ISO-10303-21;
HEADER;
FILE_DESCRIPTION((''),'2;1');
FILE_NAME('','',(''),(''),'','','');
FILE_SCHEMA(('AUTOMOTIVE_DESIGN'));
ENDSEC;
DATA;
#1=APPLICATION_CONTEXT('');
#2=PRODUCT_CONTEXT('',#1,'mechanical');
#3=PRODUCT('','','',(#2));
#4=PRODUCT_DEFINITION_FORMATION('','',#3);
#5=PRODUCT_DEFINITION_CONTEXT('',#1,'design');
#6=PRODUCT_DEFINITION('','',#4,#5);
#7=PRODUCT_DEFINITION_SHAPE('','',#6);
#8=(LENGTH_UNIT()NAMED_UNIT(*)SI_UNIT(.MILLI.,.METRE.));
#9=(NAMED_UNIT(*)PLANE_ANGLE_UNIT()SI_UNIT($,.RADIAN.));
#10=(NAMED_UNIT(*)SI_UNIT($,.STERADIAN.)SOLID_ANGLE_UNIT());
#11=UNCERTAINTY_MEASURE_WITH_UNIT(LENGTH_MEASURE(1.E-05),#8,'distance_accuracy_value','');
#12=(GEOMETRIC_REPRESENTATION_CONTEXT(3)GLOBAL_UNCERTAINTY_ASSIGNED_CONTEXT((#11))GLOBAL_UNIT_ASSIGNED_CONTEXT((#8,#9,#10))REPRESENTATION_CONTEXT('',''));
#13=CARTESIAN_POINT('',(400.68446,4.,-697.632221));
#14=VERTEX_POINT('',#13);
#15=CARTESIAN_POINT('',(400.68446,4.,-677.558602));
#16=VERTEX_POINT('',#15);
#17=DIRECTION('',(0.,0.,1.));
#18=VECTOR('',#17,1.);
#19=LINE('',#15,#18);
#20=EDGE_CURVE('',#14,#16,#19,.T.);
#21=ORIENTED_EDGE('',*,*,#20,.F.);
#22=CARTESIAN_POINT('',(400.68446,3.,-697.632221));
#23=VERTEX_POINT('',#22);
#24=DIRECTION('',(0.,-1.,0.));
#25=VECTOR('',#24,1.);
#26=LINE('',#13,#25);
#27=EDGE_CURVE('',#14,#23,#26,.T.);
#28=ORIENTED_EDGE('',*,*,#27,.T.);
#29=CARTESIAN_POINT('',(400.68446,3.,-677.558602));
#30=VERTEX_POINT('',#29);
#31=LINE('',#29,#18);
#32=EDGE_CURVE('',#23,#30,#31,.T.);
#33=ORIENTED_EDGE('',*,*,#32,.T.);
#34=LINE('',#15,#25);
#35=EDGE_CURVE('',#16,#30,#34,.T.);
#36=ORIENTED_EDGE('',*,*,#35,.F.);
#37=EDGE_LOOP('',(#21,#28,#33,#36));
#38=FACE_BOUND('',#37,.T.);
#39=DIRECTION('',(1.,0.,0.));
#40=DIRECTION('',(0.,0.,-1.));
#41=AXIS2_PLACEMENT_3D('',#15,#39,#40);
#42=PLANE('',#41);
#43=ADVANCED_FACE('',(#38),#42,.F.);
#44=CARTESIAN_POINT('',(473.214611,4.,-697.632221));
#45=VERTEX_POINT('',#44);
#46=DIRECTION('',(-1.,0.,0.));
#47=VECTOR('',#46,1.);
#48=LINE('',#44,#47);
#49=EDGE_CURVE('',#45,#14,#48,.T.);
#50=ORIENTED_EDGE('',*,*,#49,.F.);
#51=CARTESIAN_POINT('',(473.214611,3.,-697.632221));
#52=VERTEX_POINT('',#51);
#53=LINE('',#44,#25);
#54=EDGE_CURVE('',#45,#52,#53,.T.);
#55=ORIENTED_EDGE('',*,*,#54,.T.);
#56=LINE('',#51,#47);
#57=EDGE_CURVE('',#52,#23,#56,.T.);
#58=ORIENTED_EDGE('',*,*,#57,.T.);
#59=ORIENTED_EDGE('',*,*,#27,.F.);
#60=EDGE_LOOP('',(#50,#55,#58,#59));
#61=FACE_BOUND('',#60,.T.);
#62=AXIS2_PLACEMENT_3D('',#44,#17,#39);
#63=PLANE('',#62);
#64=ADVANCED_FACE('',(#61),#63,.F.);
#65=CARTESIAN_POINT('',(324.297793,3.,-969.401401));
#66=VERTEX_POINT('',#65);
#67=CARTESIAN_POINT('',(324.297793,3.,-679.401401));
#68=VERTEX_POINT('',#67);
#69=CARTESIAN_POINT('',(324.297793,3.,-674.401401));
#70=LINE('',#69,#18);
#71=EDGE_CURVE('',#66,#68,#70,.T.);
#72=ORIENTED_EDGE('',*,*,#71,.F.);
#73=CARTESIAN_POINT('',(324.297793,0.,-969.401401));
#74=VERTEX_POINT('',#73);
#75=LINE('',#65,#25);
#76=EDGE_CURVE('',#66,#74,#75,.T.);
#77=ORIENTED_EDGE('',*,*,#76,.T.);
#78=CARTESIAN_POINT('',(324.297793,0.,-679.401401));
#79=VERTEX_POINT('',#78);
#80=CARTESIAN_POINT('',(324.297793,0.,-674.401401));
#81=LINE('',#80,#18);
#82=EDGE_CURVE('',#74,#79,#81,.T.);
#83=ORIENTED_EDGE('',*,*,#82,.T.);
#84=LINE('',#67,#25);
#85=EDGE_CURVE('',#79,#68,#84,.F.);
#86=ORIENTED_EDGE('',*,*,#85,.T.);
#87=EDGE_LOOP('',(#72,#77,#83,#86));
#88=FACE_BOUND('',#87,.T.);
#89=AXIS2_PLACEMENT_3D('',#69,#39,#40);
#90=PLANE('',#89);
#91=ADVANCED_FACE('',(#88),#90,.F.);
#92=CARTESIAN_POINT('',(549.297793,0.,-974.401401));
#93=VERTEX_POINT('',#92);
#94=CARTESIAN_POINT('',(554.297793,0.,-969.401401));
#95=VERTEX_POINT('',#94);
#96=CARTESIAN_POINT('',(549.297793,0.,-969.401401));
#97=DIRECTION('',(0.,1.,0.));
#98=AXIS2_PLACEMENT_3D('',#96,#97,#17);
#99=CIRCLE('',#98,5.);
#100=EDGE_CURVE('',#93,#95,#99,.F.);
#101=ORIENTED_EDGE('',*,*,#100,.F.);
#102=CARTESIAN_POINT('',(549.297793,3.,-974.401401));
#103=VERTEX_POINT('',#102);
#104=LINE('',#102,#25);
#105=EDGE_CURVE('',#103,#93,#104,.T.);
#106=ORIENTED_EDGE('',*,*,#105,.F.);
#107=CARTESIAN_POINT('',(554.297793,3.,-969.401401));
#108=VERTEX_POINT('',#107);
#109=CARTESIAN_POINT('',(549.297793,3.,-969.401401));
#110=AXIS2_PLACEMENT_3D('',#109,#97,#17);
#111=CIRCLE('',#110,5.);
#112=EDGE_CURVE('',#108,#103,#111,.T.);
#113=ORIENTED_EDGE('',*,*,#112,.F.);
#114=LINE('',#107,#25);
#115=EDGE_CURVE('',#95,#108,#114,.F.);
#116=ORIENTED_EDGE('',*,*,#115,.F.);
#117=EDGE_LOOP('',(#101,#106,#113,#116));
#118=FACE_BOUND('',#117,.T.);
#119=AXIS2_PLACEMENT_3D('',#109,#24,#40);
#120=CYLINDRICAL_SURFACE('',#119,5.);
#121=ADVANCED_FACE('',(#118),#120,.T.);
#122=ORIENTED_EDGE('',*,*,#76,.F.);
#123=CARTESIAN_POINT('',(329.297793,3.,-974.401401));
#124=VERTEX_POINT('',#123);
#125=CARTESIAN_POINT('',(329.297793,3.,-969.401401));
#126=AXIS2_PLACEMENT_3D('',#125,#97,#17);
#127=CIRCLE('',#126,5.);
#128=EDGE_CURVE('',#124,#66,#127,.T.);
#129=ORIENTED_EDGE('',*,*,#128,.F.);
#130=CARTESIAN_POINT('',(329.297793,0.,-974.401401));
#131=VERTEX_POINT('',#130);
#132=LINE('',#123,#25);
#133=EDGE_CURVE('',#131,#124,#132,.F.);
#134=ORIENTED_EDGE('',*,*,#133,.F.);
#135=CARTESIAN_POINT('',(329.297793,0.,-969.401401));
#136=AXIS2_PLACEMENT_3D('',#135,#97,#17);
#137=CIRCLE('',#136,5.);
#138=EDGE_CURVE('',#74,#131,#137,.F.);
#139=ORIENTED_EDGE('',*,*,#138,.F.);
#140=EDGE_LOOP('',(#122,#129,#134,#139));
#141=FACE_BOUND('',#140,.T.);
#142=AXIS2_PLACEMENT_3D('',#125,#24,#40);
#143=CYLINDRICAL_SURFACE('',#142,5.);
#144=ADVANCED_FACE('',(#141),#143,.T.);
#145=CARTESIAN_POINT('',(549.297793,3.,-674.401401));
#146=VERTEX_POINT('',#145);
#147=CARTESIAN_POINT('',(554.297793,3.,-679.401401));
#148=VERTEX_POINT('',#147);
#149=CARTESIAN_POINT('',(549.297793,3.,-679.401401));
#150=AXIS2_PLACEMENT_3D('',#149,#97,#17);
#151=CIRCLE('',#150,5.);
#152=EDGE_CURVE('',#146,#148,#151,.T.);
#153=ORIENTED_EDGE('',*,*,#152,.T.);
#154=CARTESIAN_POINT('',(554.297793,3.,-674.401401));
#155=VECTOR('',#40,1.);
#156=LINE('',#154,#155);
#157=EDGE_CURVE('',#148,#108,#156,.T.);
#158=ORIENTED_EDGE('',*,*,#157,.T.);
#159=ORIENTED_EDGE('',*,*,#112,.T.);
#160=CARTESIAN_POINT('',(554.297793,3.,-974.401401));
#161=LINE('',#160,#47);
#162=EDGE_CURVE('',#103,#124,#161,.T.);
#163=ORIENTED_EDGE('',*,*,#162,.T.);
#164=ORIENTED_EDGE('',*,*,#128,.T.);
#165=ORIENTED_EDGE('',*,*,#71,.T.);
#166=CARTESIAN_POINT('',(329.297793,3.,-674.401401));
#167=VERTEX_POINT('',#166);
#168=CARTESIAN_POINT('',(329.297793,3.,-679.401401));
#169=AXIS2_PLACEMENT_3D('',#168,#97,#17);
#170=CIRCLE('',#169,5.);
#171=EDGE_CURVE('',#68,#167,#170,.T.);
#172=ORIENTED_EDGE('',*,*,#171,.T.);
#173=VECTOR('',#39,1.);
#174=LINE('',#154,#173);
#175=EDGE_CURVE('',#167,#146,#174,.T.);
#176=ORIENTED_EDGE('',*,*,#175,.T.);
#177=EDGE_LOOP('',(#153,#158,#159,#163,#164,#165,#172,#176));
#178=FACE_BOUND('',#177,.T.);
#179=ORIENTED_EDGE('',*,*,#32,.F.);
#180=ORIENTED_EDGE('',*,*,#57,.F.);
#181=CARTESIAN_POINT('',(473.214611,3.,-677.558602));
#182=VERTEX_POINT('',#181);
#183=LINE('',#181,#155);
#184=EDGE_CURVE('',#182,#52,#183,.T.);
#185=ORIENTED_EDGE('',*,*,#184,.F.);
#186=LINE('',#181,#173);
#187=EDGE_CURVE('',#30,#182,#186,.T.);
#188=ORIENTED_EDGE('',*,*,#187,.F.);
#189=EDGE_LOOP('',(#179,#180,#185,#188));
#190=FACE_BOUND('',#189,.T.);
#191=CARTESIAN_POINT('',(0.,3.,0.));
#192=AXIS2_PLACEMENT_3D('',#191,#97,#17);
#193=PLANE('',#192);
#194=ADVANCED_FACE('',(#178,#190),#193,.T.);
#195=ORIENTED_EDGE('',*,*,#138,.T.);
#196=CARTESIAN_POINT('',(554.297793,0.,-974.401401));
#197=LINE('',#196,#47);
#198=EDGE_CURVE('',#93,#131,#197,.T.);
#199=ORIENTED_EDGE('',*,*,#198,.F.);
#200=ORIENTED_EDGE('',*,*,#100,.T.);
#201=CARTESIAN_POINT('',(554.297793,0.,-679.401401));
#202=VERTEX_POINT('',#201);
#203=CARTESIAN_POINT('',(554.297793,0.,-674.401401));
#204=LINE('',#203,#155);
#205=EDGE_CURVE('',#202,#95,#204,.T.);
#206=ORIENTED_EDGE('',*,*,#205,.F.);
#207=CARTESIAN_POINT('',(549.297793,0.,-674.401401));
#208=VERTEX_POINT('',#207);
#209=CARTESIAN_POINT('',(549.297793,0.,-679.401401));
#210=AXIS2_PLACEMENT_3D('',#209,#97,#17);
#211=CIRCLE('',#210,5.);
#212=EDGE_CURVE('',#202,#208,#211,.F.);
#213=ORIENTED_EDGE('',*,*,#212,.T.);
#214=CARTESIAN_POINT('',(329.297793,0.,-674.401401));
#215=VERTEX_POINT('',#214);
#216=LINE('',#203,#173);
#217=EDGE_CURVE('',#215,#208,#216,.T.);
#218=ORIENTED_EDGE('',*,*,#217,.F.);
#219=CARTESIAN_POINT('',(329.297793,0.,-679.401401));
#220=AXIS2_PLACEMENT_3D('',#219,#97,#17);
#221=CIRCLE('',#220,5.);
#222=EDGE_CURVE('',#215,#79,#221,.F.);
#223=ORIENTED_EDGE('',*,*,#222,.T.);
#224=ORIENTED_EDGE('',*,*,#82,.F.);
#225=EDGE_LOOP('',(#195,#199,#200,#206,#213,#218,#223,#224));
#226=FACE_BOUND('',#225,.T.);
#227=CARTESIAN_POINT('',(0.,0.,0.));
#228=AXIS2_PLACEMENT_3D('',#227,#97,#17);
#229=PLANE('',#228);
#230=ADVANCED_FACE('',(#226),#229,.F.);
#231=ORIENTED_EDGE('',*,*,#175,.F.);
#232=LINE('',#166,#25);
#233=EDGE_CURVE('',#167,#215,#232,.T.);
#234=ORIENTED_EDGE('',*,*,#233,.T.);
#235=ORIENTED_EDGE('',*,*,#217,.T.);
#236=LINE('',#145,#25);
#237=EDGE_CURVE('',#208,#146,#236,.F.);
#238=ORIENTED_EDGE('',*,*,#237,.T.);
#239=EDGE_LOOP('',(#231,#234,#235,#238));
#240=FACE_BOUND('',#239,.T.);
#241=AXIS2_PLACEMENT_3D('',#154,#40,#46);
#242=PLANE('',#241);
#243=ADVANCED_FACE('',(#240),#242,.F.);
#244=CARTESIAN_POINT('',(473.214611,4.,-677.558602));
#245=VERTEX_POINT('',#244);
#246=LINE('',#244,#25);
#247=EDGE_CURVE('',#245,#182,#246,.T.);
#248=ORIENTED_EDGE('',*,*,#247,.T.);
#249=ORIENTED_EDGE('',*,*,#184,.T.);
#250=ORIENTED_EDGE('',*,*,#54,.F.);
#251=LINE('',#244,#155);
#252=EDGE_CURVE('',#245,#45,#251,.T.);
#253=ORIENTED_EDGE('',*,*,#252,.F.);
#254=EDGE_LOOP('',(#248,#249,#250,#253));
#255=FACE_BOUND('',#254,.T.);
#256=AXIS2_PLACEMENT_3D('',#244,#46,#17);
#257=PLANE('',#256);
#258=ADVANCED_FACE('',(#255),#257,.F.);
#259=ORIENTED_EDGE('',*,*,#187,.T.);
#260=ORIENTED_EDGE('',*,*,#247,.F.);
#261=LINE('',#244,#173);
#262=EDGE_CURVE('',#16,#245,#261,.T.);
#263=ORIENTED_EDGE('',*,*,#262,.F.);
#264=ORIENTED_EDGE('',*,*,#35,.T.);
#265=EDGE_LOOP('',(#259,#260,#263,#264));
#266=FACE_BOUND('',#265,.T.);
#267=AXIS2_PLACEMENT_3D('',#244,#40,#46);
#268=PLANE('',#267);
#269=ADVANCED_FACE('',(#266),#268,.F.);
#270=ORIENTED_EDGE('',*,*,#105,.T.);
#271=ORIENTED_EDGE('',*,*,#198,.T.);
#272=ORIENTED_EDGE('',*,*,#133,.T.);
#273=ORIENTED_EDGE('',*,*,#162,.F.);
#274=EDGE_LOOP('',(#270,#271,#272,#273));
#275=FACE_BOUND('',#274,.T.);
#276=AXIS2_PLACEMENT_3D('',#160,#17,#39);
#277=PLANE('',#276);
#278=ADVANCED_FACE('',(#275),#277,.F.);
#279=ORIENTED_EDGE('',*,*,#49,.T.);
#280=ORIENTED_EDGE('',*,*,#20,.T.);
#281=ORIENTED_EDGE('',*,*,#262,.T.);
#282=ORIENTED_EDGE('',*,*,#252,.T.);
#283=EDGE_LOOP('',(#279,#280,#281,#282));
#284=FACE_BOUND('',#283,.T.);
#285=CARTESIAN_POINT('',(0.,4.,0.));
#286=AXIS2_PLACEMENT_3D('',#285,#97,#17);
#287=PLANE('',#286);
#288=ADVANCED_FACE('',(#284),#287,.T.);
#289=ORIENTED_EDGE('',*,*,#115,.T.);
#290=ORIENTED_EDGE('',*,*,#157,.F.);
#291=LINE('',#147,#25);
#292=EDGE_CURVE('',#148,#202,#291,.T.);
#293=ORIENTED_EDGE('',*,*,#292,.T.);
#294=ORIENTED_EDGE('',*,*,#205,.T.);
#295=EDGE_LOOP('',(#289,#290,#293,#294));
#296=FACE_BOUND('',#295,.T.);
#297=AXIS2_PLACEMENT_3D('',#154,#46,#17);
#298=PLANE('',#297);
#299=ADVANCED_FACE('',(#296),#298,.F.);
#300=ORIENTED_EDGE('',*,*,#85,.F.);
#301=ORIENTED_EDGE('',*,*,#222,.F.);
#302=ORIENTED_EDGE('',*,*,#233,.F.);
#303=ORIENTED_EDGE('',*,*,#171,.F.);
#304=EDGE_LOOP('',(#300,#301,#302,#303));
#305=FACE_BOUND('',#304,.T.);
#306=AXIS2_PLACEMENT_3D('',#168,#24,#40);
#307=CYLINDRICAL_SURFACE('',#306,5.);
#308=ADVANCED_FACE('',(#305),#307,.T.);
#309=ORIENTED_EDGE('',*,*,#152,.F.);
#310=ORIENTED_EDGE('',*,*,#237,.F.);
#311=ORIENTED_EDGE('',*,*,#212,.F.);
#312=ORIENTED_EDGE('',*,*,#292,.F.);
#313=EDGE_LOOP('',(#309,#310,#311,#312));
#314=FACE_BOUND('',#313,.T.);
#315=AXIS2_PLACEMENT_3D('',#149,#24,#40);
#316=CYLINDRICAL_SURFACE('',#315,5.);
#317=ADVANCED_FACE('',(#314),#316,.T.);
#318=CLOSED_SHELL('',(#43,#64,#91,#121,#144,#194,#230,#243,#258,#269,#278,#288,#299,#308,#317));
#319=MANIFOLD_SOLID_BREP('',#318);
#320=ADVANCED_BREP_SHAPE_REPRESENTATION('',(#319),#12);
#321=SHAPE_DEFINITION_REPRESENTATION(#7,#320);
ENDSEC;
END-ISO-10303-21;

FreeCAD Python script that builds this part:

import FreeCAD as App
import Part
import Sketcher

V = App.Vector
Q = App.Units.Quantity


def edges_at(feature, points):
    """Names of the edges that pass closest to the given points."""
    edges = feature.Shape.Edges
    near = lambda p: min(range(len(edges)), key=lambda i: edges[i].distToShape(Part.Vertex(*p))[0])
    return sorted({f"Edge{near(p) + 1}" for p in points})

doc = App.newDocument("Part")
body = doc.addObject("PartDesign::Body", "Body")

sketch1 = body.newObject("Sketcher::SketchObject", "Sketch")
sketch1.AttachmentSupport = (doc.getObject("XZ_Plane"), [""])
sketch1.MapMode = "FlatFace"
sketch1.addGeometry([
    Part.LineSegment(V(324.297793, -974.401401, 0), V(324.297793, -674.401401, 0)),
    Part.LineSegment(V(324.297793, -674.401401, 0), V(554.297793, -674.401401, 0)),
    Part.LineSegment(V(554.297793, -674.401401, 0), V(554.297793, -974.401401, 0)),
    Part.LineSegment(V(554.297793, -974.401401, 0), V(324.297793, -974.401401, 0)),
], False)
sketch1.addConstraint([
    Sketcher.Constraint("Coincident", 0, 2, 1, 1),
    Sketcher.Constraint("Coincident", 1, 2, 2, 1),
    Sketcher.Constraint("Coincident", 2, 2, 3, 1),
    Sketcher.Constraint("Coincident", 3, 2, 0, 1),
    Sketcher.Constraint("Vertical", 0),
    Sketcher.Constraint("Horizontal", 1),
    Sketcher.Constraint("Vertical", 2),
    Sketcher.Constraint("Horizontal", 3),
    Sketcher.Constraint("DistanceX", 1, 1, 1, 2, Q("230 mm")),
    Sketcher.Constraint("DistanceY", 0, 1, 0, 2, Q("300 mm")),
    Sketcher.Constraint("DistanceY", 0, 2, -1, 1, Q("674.401401 mm")),
    Sketcher.Constraint("DistanceX", -1, 1, 0, 2, Q("324.297793 mm")),
])
pad1 = body.newObject("PartDesign::Pad", "Pad")
pad1.Profile = sketch1
pad1.Length = 3
pad1.Reversed = True
doc.recompute()

fillet = body.newObject("PartDesign::Fillet", "Fillet")
fillet.Base = (pad1, edges_at(pad1, [
    (554.298, 1.5, -674.401),
    (324.298, 1.5, -674.401),
    (324.298, 1.5, -974.401),
    (554.298, 1.5, -974.401),
]))
fillet.Radius = 5

sketch2 = body.newObject("Sketcher::SketchObject", "Sketch001")
sketch2.AttachmentSupport = (doc.getObject("XZ_Plane"), [""])
sketch2.MapMode = "FlatFace"
sketch2.AttachmentOffset = App.Placement(V(0, 0, -3), App.Rotation())
sketch2.addGeometry([
    Part.LineSegment(V(400.68446, -697.632221, 0), V(400.68446, -677.558602, 0)),
    Part.LineSegment(V(400.68446, -677.558602, 0), V(473.214611, -677.558602, 0)),
    Part.LineSegment(V(473.214611, -677.558602, 0), V(473.214611, -697.632221, 0)),
    Part.LineSegment(V(473.214611, -697.632221, 0), V(400.68446, -697.632221, 0)),
], False)
sketch2.addConstraint([
    Sketcher.Constraint("Coincident", 0, 2, 1, 1),
    Sketcher.Constraint("Coincident", 1, 2, 2, 1),
    Sketcher.Constraint("Coincident", 2, 2, 3, 1),
    Sketcher.Constraint("Coincident", 3, 2, 0, 1),
    Sketcher.Constraint("Vertical", 0),
    Sketcher.Constraint("Horizontal", 1),
    Sketcher.Constraint("Vertical", 2),
    Sketcher.Constraint("Horizontal", 3),
    Sketcher.Constraint("DistanceX", 1, 1, 1, 2, Q("72.53015 mm")),
    Sketcher.Constraint("DistanceY", 0, 1, 0, 2, Q("20.073619 mm")),
    Sketcher.Constraint("DistanceX", -1, 1, 0, 2, Q("400.68446 mm")),
    Sketcher.Constraint("DistanceY", 2, 2, -1, 1, Q("697.632221 mm")),
])
pad2 = body.newObject("PartDesign::Pad", "Pad001")
pad2.Profile = sketch2
pad2.Length = 1
pad2.Reversed = True

doc.recompute()
